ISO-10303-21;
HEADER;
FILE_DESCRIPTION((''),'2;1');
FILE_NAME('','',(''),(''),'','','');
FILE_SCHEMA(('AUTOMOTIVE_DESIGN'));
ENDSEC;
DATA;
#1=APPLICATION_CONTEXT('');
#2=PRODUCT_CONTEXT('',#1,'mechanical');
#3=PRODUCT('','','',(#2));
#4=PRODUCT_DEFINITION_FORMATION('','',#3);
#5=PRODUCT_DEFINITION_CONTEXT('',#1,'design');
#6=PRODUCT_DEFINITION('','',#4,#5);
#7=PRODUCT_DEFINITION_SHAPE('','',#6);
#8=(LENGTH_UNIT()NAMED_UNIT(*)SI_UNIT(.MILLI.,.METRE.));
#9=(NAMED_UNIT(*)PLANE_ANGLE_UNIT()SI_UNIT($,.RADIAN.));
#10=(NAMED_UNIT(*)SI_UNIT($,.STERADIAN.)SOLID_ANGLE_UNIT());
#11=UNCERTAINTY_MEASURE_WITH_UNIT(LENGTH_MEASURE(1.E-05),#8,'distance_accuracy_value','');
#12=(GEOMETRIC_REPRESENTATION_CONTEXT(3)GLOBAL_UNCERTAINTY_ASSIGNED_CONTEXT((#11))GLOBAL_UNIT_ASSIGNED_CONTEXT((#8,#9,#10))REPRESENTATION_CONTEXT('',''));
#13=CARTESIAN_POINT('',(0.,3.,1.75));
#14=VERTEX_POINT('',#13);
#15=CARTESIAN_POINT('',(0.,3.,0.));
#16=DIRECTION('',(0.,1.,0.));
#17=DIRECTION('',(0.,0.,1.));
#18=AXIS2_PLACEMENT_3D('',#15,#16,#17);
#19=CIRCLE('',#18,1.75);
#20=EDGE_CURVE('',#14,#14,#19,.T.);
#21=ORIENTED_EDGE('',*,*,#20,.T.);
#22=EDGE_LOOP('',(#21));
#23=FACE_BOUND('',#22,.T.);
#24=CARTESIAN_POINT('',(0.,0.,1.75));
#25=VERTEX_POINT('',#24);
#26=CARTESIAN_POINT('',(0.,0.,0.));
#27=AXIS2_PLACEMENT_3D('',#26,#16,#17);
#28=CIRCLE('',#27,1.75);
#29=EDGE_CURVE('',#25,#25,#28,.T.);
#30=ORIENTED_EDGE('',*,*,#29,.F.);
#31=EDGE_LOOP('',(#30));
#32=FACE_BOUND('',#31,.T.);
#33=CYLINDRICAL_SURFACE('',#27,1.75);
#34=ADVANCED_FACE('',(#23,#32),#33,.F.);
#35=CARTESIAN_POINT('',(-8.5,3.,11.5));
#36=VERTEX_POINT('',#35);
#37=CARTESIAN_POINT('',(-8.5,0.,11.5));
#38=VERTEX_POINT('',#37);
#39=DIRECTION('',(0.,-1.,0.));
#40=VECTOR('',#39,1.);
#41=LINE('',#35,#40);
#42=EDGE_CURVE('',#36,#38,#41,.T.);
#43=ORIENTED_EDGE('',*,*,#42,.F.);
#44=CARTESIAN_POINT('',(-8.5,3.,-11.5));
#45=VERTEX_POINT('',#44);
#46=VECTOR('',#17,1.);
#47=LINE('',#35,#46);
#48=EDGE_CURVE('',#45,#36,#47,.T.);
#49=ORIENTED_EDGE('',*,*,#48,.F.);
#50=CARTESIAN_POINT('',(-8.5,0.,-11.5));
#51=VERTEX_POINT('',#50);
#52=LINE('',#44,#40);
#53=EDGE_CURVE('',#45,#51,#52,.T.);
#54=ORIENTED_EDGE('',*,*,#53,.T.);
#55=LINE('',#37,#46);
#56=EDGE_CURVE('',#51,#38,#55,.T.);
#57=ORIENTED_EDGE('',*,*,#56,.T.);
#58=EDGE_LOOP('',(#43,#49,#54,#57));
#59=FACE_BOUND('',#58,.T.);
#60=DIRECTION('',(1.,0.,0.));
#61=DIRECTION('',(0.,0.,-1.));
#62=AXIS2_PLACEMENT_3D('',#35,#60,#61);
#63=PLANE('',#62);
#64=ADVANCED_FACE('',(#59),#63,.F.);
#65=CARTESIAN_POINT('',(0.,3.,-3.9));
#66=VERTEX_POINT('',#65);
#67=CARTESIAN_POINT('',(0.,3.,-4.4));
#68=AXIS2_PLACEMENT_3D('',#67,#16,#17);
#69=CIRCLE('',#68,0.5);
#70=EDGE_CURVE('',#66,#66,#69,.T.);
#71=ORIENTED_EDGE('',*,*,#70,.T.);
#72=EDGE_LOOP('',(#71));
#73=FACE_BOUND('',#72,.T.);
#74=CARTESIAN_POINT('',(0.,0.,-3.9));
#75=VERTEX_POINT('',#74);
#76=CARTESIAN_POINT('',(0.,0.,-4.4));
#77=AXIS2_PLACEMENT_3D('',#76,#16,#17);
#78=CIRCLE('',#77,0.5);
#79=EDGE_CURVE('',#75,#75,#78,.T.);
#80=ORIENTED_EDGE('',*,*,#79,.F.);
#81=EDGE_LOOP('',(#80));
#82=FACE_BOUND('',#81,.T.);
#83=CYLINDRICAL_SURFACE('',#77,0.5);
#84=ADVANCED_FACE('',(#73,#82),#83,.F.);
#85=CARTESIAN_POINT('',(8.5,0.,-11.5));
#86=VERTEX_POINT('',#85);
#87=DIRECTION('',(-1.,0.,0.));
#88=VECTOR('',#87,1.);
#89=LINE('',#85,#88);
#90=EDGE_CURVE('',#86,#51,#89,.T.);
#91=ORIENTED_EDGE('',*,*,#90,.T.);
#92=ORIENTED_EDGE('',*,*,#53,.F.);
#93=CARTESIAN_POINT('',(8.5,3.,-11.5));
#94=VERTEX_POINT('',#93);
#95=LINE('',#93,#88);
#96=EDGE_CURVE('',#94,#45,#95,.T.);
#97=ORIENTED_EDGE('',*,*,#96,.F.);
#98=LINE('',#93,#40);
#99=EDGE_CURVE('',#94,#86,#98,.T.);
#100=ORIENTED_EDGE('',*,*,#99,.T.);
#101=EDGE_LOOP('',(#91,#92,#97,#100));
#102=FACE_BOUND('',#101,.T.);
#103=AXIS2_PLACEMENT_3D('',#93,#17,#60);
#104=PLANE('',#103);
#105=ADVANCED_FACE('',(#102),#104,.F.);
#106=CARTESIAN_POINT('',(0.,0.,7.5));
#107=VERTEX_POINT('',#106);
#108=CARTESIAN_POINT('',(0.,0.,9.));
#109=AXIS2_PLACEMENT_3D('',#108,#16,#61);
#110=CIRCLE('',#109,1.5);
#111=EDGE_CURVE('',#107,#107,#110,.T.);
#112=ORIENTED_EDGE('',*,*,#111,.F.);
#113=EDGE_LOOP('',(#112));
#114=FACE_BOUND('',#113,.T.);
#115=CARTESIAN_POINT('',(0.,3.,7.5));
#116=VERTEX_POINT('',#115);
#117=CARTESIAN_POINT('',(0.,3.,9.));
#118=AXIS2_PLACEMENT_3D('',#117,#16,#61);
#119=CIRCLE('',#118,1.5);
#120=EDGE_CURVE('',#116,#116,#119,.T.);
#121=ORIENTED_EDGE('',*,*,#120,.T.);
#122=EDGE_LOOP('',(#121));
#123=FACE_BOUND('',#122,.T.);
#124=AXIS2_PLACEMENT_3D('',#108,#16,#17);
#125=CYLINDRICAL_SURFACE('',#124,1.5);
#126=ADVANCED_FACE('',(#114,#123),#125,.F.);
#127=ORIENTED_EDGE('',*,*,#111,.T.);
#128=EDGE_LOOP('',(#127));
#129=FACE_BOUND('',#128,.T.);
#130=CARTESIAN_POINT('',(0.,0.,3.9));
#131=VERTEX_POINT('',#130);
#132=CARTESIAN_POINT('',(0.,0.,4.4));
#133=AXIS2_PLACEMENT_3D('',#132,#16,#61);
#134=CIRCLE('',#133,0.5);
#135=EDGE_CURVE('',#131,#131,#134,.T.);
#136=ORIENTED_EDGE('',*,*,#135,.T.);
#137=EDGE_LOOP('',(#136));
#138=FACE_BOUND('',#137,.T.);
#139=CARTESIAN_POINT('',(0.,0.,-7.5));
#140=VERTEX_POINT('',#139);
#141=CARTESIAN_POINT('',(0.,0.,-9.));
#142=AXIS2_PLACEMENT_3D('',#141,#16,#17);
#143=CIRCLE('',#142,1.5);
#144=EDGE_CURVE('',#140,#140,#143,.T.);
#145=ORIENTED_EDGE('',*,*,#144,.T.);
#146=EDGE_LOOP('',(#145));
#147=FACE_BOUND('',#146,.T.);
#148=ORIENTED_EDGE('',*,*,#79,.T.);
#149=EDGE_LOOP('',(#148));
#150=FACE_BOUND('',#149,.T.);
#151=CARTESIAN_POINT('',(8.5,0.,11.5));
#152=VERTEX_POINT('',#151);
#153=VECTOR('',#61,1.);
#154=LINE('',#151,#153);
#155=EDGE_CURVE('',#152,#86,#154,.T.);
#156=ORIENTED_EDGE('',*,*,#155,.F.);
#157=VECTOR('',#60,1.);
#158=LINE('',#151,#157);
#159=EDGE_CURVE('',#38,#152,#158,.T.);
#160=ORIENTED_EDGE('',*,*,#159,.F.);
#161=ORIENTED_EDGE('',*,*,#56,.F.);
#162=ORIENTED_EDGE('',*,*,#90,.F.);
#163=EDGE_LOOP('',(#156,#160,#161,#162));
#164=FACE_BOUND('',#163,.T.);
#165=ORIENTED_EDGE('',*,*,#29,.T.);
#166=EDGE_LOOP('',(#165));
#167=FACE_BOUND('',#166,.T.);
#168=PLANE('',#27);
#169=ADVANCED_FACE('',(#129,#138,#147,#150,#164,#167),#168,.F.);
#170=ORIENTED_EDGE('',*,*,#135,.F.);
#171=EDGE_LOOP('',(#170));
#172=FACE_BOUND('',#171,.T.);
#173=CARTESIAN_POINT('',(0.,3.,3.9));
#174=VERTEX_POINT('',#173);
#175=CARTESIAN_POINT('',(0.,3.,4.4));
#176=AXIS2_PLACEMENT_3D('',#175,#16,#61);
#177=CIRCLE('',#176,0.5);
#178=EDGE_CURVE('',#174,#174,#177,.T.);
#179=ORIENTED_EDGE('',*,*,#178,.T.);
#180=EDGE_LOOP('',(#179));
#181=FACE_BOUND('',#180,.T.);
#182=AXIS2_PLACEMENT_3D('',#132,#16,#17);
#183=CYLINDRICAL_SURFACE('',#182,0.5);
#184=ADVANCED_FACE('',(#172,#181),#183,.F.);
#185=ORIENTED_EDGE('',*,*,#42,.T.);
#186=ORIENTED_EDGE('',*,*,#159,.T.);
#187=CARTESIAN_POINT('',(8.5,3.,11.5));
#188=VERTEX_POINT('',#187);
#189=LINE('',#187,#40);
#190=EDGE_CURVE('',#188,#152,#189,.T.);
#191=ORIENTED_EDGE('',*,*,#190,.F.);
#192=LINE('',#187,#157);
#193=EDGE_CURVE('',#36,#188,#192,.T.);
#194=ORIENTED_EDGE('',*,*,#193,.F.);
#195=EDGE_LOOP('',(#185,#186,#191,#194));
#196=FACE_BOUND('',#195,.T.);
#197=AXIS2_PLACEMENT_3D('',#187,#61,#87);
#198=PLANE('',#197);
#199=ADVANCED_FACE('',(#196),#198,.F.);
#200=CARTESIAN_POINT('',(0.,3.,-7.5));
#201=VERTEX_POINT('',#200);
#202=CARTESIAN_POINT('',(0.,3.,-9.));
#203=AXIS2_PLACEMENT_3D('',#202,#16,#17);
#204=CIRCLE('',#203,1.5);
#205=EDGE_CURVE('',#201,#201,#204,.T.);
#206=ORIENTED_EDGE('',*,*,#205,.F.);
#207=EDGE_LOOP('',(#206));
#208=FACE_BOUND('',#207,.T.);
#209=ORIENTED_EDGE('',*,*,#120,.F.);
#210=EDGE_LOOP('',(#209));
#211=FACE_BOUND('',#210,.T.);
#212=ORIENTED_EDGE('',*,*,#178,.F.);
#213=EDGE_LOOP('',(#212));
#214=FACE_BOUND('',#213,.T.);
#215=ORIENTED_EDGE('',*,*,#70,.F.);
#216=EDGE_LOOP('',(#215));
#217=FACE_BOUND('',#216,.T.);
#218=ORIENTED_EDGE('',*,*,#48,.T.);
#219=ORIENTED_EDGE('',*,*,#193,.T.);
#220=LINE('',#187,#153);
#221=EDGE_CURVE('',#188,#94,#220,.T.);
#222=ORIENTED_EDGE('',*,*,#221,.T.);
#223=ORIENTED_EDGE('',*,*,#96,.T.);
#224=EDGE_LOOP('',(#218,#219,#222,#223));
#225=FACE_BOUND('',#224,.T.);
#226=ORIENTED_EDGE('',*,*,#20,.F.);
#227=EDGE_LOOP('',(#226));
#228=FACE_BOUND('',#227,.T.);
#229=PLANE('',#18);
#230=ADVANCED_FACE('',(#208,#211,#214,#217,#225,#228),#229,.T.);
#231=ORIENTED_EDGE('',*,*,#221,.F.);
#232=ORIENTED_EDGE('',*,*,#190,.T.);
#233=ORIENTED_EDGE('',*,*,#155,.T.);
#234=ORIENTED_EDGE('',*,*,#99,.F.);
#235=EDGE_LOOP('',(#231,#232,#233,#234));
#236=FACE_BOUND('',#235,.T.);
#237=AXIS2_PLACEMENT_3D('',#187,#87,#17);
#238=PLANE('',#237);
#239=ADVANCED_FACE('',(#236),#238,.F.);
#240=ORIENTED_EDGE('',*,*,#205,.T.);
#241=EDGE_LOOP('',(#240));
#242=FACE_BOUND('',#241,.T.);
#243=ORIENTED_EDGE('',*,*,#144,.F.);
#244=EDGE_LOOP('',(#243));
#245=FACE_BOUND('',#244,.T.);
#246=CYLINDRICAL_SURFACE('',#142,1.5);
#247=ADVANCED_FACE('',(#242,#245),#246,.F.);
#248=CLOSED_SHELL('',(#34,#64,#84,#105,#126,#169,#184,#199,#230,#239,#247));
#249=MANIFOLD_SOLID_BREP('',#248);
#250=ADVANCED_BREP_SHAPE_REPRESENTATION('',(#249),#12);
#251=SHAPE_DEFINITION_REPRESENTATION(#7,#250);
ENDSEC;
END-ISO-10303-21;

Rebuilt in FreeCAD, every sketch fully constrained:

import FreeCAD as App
import Part
import Sketcher

doc = App.newDocument("Part")
body = doc.addObject("PartDesign::Body", "Body")

# Sketch on XZ plane
sketch1 = doc.addObject("Sketcher::SketchObject", "Sketch")
body.addObject(sketch1)
sketch1.AttachmentSupport = (doc.XZ_Plane, [""])
sketch1.MapMode = "FlatFace"
sketch1.addGeometry([
    Part.LineSegment(App.Vector(-8, -12, 0), App.Vector(-8, 12, 0)),
    Part.LineSegment(App.Vector(-8, 12, 0), App.Vector(8, 12, 0)),
    Part.LineSegment(App.Vector(8, 12, 0), App.Vector(8, -12, 0)),
    Part.LineSegment(App.Vector(8, -12, 0), App.Vector(-8, -12, 0)),
], False)
sketch1.addConstraint([
    Sketcher.Constraint("Coincident", 0, 2, 1, 1),
    Sketcher.Constraint("Coincident", 1, 2, 2, 1),
    Sketcher.Constraint("Coincident", 2, 2, 3, 1),
    Sketcher.Constraint("Coincident", 3, 2, 0, 1),
    Sketcher.Constraint("Vertical", 0),
    Sketcher.Constraint("Horizontal", 1),
    Sketcher.Constraint("Vertical", 2),
    Sketcher.Constraint("Horizontal", 3),
    Sketcher.Constraint("Symmetric", 0, 2, 2, 2, -1, 1),
    Sketcher.Constraint("DistanceX", 1, 1, 1, 2, 17.0),
    Sketcher.Constraint("DistanceY", 0, 1, 0, 2, 23.0),
])
pad1 = doc.addObject("PartDesign::Pad", "Pad")
body.addObject(pad1)
pad1.Profile = sketch1
pad1.Length = 3
pad1.Reversed = True

# Sketch on XZ plane
sketch2 = doc.addObject("Sketcher::SketchObject", "Sketch001")
body.addObject(sketch2)
sketch2.AttachmentSupport = (doc.XZ_Plane, [""])
sketch2.MapMode = "FlatFace"
sketch2.AttachmentOffset = App.Placement(App.Vector(0, 0, -3), App.Rotation())
sketch2.addGeometry([
    Part.Circle(App.Vector(0, -9, 0), App.Vector(0, 0, 1), 1.5),
    Part.Circle(App.Vector(0, -4.4, 0), App.Vector(0, 0, 1), 0.5),
    Part.Circle(App.Vector(0, 4.4, 0), App.Vector(0, 0, 1), 0.5),
    Part.Circle(App.Vector(0, 9, 0), App.Vector(0, 0, 1), 1.5),
], False)
sketch2.addConstraint([
    Sketcher.Constraint("Equal", 1, 2),
    Sketcher.Constraint("Equal", 0, 3),
    Sketcher.Constraint("Symmetric", 1, 3, 2, 3, -1, 1),
    Sketcher.Constraint("Symmetric", 0, 3, 3, 3, -1, 1),
    Sketcher.Constraint("PointOnObject", 0, 3, -2),
    Sketcher.Constraint("PointOnObject", 1, 3, -2),
    Sketcher.Constraint("Diameter", 0, 3.0),
    Sketcher.Constraint("Diameter", 1, 1.0),
    Sketcher.Constraint("DistanceY", 0, 3, -1, 1, 9.0),
    Sketcher.Constraint("DistanceY", 1, 3, -1, 1, 4.4),
])
pocket1 = doc.addObject("PartDesign::Pocket", "Pocket")
body.addObject(pocket1)
pocket1.Profile = sketch2
pocket1.Type = "ThroughAll"
pocket1.Reversed = True

# Sketch on XZ plane
sketch3 = doc.addObject("Sketcher::SketchObject", "Sketch002")
body.addObject(sketch3)
sketch3.AttachmentSupport = (doc.XZ_Plane, [""])
sketch3.MapMode = "FlatFace"
sketch3.AttachmentOffset = App.Placement(App.Vector(0, 0, -3), App.Rotation())
sketch3.addGeometry(Part.Circle(App.Vector(0, 0, 0), App.Vector(0, 0, 1), 1.8), False)
sketch3.addConstraint([
    Sketcher.Constraint("Coincident", 0, 3, -1, 1),
    Sketcher.Constraint("Diameter", 0, 3.5),
])
pocket2 = doc.addObject("PartDesign::Pocket", "Pocket001")
body.addObject(pocket2)
pocket2.Profile = sketch3
pocket2.Type = "ThroughAll"
pocket2.Reversed = True

doc.recompute()
